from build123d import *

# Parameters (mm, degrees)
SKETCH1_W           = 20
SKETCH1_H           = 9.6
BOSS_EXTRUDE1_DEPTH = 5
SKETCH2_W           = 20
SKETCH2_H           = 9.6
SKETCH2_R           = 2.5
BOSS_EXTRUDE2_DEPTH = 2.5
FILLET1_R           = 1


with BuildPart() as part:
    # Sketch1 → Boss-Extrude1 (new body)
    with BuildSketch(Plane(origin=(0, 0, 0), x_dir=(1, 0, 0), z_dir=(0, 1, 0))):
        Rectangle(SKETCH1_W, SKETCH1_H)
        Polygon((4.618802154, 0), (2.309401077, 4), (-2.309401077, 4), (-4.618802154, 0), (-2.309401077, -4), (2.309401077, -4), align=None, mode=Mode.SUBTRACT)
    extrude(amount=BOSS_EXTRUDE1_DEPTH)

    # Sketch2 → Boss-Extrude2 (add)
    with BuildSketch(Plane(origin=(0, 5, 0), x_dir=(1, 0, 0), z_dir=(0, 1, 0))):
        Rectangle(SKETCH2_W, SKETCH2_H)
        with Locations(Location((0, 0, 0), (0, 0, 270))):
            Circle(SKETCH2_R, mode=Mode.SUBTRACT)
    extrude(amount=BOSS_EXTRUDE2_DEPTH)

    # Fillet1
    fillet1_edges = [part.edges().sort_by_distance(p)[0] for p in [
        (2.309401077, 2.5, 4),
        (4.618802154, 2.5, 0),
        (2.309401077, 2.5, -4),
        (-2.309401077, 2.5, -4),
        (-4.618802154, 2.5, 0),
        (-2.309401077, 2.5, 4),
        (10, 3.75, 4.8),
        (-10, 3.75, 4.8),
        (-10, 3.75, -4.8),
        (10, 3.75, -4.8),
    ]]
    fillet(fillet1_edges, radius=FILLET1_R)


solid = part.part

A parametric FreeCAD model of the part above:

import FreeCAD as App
import Part
import Sketcher
from FreeCAD import Vector
Q = App.Units.Quantity


def edges_at(feature, points):
    """Names of the edges that pass closest to the given points."""
    edges = feature.Shape.Edges
    near = lambda p: min(range(len(edges)), key=lambda i: edges[i].distToShape(Part.Vertex(*p))[0])
    return sorted({f"Edge{near(p) + 1}" for p in points})

doc = App.newDocument("Part")
params = doc.addObject("Spreadsheet::Sheet", "Params")
for row, (alias, value) in enumerate([
    ("sketch1_width", "20 mm"),
    ("sketch1_height", "9.6 mm"),
    ("pad1_length", "5 mm"),
    ("sketch2_diameter", "5 mm"),
    ("sketch2_width", "20 mm"),
    ("sketch2_height", "9.6 mm"),
    ("pad2_length", "2.5 mm"),
    ("fillet_radius", "1 mm"),
], start=1):
    params.set(f"A{row}", alias)
    params.set(f"B{row}", "=" + value)
    params.setAlias(f"B{row}", alias)

body = doc.addObject("PartDesign::Body", "Body")

# Sketch on XZ plane
sketch1 = doc.addObject("Sketcher::SketchObject", "Sketch")
body.addObject(sketch1)
sketch1.AttachmentSupport = (doc.XZ_Plane, [""])
sketch1.MapMode = "FlatFace"
sketch1.addGeometry([
    Part.LineSegment(Vector(-10, -4.8, 0), Vector(-10, 4.8, 0)),  # 0
    Part.LineSegment(Vector(-10, 4.8, 0), Vector(10, 4.8, 0)),  # 1
    Part.LineSegment(Vector(10, 4.8, 0), Vector(10, -4.8, 0)),  # 2
    Part.LineSegment(Vector(10, -4.8, 0), Vector(-10, -4.8, 0)),  # 3
    Part.LineSegment(Vector(2.3, -4, 0), Vector(4.6, 0, 0)),  # 4
    Part.LineSegment(Vector(4.6, 0, 0), Vector(2.3, 4, 0)),  # 5
    Part.LineSegment(Vector(2.3, 4, 0), Vector(-2.3, 4, 0)),  # 6
    Part.LineSegment(Vector(-2.3, 4, 0), Vector(-4.6, 0, 0)),  # 7
    Part.LineSegment(Vector(-4.6, 0, 0), Vector(-2.3, -4, 0)),  # 8
    Part.LineSegment(Vector(-2.3, -4, 0), Vector(2.3, -4, 0)),  # 9
], False)
sketch1.addConstraint([
    Sketcher.Constraint("Coincident", 0, 2, 1, 1),
    Sketcher.Constraint("Coincident", 1, 2, 2, 1),
    Sketcher.Constraint("Coincident", 2, 2, 3, 1),
    Sketcher.Constraint("Coincident", 3, 2, 0, 1),
    Sketcher.Constraint("Coincident", 4, 2, 5, 1),
    Sketcher.Constraint("Coincident", 5, 2, 6, 1),
    Sketcher.Constraint("Coincident", 6, 2, 7, 1),
    Sketcher.Constraint("Coincident", 7, 2, 8, 1),
    Sketcher.Constraint("Coincident", 8, 2, 9, 1),
    Sketcher.Constraint("Coincident", 9, 2, 4, 1),
    Sketcher.Constraint("Vertical", 0),
    Sketcher.Constraint("Horizontal", 1),
    Sketcher.Constraint("Vertical", 2),
    Sketcher.Constraint("Horizontal", 3),
    Sketcher.Constraint("Horizontal", 6),
    Sketcher.Constraint("Horizontal", 9),
    Sketcher.Constraint("Symmetric", 0, 2, 2, 2, -1, 1),
    Sketcher.Constraint("Symmetric", 4, 2, 7, 2, -1, 1),
    Sketcher.Constraint("Symmetric", 5, 2, 8, 2, -1, 1),
    Sketcher.Constraint("PointOnObject", 4, 2, -1),
    Sketcher.Constraint("Parallel", 4, 7),
    Sketcher.Constraint("Vertical", 6, 2, 8, 2),
    Sketcher.Constraint("DistanceX", 1, 1, 1, 2, Q("20 mm")),
    Sketcher.Constraint("Angle", 4, Q("60 deg")),
    Sketcher.Constraint("DistanceY", 0, 1, 0, 2, Q("9.6 mm")),
    Sketcher.Constraint("DistanceY", -1, 1, 5, 2, Q("4 mm")),
    Sketcher.Constraint("DistanceX", -1, 1, 5, 2, Q("2.309401 mm")),
])
sketch1.setExpression("Constraints[22]", "Params.sketch1_width")
sketch1.setExpression("Constraints[24]", "Params.sketch1_height")
pad1 = doc.addObject("PartDesign::Pad", "Pad")
body.addObject(pad1)
pad1.Profile = sketch1
pad1.setExpression("Length", "Params.pad1_length")
pad1.Reversed = True

# Sketch on XZ plane
sketch2 = doc.addObject("Sketcher::SketchObject", "Sketch001")
body.addObject(sketch2)
sketch2.AttachmentSupport = (doc.XZ_Plane, [""])
sketch2.MapMode = "FlatFace"
sketch2.AttachmentOffset = App.Placement(Vector(0, 0, -5), App.Rotation())
sketch2.addGeometry([
    Part.LineSegment(Vector(-10, -4.8, 0), Vector(-10, 4.8, 0)),  # 0
    Part.LineSegment(Vector(-10, 4.8, 0), Vector(10, 4.8, 0)),  # 1
    Part.LineSegment(Vector(10, 4.8, 0), Vector(10, -4.8, 0)),  # 2
    Part.LineSegment(Vector(10, -4.8, 0), Vector(-10, -4.8, 0)),  # 3
    Part.Circle(Vector(0, 0, 0), Vector(0, 0, 1), 2.5),  # 4
], False)
sketch2.addConstraint([
    Sketcher.Constraint("Coincident", 0, 2, 1, 1),
    Sketcher.Constraint("Coincident", 1, 2, 2, 1),
    Sketcher.Constraint("Coincident", 2, 2, 3, 1),
    Sketcher.Constraint("Coincident", 3, 2, 0, 1),
    Sketcher.Constraint("Vertical", 0),
    Sketcher.Constraint("Horizontal", 1),
    Sketcher.Constraint("Vertical", 2),
    Sketcher.Constraint("Horizontal", 3),
    Sketcher.Constraint("Coincident", 4, 3, -1, 1),
    Sketcher.Constraint("Symmetric", 0, 2, 2, 2, -1, 1),
    Sketcher.Constraint("Diameter", 4, Q("5 mm")),
    Sketcher.Constraint("DistanceX", 1, 1, 1, 2, Q("20 mm")),
    Sketcher.Constraint("DistanceY", 0, 1, 0, 2, Q("9.6 mm")),
])
sketch2.setExpression("Constraints[10]", "Params.sketch2_diameter")
sketch2.setExpression("Constraints[11]", "Params.sketch2_width")
sketch2.setExpression("Constraints[12]", "Params.sketch2_height")
pad2 = doc.addObject("PartDesign::Pad", "Pad001")
body.addObject(pad2)
pad2.Profile = sketch2
pad2.setExpression("Length", "Params.pad2_length")
pad2.Reversed = True
doc.recompute()

fillet = doc.addObject("PartDesign::Fillet", "Fillet")
body.addObject(fillet)
fillet.Base = (pad2, edges_at(pad2, [
    (2.309, 2.5, 4),
    (4.619, 2.5, 0),
    (2.309, 2.5, -4),
    (-2.309, 2.5, -4),
    (-4.619, 2.5, 0),
    (-2.309, 2.5, 4),
    (10, 3.75, 4.8),
    (-10, 3.75, 4.8),
    (-10, 3.75, -4.8),
    (10, 3.75, -4.8),
]))
fillet.setExpression("Radius", "Params.fillet_radius")

doc.recompute()
